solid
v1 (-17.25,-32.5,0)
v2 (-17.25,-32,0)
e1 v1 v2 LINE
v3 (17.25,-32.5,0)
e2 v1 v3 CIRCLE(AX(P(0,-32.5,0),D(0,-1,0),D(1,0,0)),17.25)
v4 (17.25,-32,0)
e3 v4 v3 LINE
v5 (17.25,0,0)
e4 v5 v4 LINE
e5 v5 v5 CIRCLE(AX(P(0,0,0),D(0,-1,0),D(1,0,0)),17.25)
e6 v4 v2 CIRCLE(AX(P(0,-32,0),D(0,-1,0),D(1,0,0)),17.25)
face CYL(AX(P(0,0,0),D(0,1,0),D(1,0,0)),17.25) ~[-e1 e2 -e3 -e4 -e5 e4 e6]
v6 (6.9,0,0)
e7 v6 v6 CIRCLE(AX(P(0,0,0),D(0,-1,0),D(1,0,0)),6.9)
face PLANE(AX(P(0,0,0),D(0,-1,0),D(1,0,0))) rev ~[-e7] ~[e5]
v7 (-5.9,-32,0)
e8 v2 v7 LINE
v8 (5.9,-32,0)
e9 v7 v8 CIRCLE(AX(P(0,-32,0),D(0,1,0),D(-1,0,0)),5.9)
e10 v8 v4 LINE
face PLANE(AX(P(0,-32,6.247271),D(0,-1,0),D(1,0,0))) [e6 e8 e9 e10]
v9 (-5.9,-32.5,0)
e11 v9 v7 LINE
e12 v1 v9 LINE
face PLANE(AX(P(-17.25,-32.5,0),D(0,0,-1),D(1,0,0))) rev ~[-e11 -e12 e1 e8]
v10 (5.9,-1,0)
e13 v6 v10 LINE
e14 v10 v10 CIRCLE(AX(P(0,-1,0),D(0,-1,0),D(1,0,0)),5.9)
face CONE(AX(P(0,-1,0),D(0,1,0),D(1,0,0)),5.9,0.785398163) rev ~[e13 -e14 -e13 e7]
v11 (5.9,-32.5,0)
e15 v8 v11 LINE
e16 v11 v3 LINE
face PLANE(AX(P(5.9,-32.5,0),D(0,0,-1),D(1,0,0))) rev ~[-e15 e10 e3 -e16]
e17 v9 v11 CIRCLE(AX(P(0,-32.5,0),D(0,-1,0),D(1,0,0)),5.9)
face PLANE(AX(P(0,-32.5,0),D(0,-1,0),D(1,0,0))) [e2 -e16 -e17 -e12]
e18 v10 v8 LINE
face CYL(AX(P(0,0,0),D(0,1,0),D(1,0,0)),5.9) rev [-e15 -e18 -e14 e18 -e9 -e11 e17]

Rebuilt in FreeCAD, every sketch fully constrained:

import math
import FreeCAD as App
import Part
import Sketcher

V = App.Vector


def edges_at(feature, points):
    """Names of the edges that pass closest to the given points."""
    edges = feature.Shape.Edges
    near = lambda p: min(range(len(edges)), key=lambda i: edges[i].distToShape(Part.Vertex(*p))[0])
    return sorted({f"Edge{near(p) + 1}" for p in points})

doc = App.newDocument("Part")
body = doc.addObject("PartDesign::Body", "Body")

# Sketch on XZ plane
sketch1 = doc.addObject("Sketcher::SketchObject", "Sketch")
body.addObject(sketch1)
sketch1.AttachmentSupport = (doc.XZ_Plane, [""])
sketch1.MapMode = "FlatFace"
sketch1.addGeometry(Part.Circle(V(0, 0, 0), V(0, 0, 1), 17), False)
sketch1.addGeometry(Part.Circle(V(0, 0, 0), V(0, 0, 1), 6), False)
sketch1.addConstraint(Sketcher.Constraint("Coincident", 0, 3, -1, 1))
sketch1.addConstraint(Sketcher.Constraint("Coincident", 1, 3, -1, 1))
sketch1.addConstraint(Sketcher.Constraint("Diameter", 0, 34.5))
sketch1.addConstraint(Sketcher.Constraint("Diameter", 1, 11.8))
pad1 = doc.addObject("PartDesign::Pad", "Pad")
body.addObject(pad1)
pad1.Profile = sketch1
pad1.Length = 32.5

# Sketch on XZ plane
sketch2 = doc.addObject("Sketcher::SketchObject", "Sketch001")
body.addObject(sketch2)
sketch2.AttachmentSupport = (doc.XZ_Plane, [""])
sketch2.MapMode = "FlatFace"
sketch2.AttachmentOffset = App.Placement(V(0, 0, 32.5), App.Rotation())
sketch2.addGeometry(Part.ArcOfCircle(Part.Circle(V(0, 0, 0), V(0, 0, 1), 6), math.radians(0), math.radians(180)), False)
sketch2.addGeometry(Part.LineSegment(V(6, 0, 0), V(17, 0, 0)), False)
sketch2.addGeometry(Part.ArcOfCircle(Part.Circle(V(0, 0, 0), V(0, 0, 1), 17), math.radians(0), math.radians(180)), False)
sketch2.addGeometry(Part.LineSegment(V(-17, 0, 0), V(-6, 0, 0)), False)
sketch2.addConstraint(Sketcher.Constraint("Coincident", 0, 1, 1, 1))
sketch2.addConstraint(Sketcher.Constraint("Coincident", 1, 2, 2, 1))
sketch2.addConstraint(Sketcher.Constraint("Coincident", 2, 2, 3, 1))
sketch2.addConstraint(Sketcher.Constraint("Coincident", 3, 2, 0, 2))
sketch2.addConstraint(Sketcher.Constraint("Horizontal", 1))
sketch2.addConstraint(Sketcher.Constraint("Horizontal", 3))
sketch2.addConstraint(Sketcher.Constraint("Coincident", 0, 3, -1, 1))
sketch2.addConstraint(Sketcher.Constraint("Coincident", 2, 3, -1, 1))
sketch2.addConstraint(Sketcher.Constraint("PointOnObject", 0, 1, -1))
sketch2.addConstraint(Sketcher.Constraint("PointOnObject", 2, 2, -1))
sketch2.addConstraint(Sketcher.Constraint("Radius", 0, 5.9))
sketch2.addConstraint(Sketcher.Constraint("Radius", 2, 17.25))
pocket1 = doc.addObject("PartDesign::Pocket", "Pocket")
body.addObject(pocket1)
pocket1.Profile = sketch2
pocket1.Length = 0.5
doc.recompute()

chamfer = doc.addObject("PartDesign::Chamfer", "Chamfer")
body.addObject(chamfer)
chamfer.Base = (pocket1, edges_at(pocket1, [(-5.9, 0, 0)]))
chamfer.Size = 1

doc.recompute()
